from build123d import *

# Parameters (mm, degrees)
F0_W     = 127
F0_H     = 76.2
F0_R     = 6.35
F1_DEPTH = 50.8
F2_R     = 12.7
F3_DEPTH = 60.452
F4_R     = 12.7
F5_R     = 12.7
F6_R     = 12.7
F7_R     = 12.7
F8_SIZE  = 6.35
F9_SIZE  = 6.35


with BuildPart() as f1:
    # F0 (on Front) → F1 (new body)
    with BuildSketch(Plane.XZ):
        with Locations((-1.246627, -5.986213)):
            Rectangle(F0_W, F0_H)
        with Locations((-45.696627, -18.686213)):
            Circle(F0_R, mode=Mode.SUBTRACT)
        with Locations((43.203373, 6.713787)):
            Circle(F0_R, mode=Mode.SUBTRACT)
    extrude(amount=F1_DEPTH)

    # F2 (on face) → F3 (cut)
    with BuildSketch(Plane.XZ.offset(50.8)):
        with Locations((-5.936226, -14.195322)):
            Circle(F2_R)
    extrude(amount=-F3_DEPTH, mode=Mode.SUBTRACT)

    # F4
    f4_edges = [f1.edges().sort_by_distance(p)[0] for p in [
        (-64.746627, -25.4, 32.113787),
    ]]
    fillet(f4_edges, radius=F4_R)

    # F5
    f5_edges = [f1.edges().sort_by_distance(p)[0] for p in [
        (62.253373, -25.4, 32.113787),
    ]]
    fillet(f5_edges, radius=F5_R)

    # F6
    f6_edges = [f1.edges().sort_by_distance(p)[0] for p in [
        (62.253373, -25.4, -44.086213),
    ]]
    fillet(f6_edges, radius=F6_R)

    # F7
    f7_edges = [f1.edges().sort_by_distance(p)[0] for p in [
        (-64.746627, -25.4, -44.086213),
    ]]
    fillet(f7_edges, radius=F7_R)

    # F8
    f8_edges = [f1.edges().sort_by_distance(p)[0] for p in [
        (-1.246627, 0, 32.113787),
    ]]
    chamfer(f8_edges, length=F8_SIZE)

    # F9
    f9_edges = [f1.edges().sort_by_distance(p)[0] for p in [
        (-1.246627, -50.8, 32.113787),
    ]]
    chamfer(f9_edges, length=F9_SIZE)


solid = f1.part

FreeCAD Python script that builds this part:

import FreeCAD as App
import Part
import Sketcher

V = App.Vector
Q = App.Units.Quantity


def edges_at(feature, points):
    """Names of the edges that pass closest to the given points."""
    edges = feature.Shape.Edges
    near = lambda p: min(range(len(edges)), key=lambda i: edges[i].distToShape(Part.Vertex(*p))[0])
    return sorted({f"Edge{near(p) + 1}" for p in points})

doc = App.newDocument("Part")
body = doc.addObject("PartDesign::Body", "Body")

# Sketch on XZ plane
sketch1 = doc.addObject("Sketcher::SketchObject", "Sketch")
body.addObject(sketch1)
sketch1.AttachmentSupport = (doc.XZ_Plane, [""])
sketch1.MapMode = "FlatFace"
sketch1.addGeometry(Part.LineSegment(V(-65, 32, 0), V(-65, -44, 0)), False)
sketch1.addGeometry(Part.LineSegment(V(-65, -44, 0), V(62, -44, 0)), False)
sketch1.addGeometry(Part.LineSegment(V(62, -44, 0), V(62, 32, 0)), False)
sketch1.addGeometry(Part.LineSegment(V(62, 32, 0), V(-65, 32, 0)), False)
sketch1.addGeometry(Part.Circle(V(-46, -19, 0), V(0, 0, 1), 6), False)
sketch1.addGeometry(Part.Circle(V(43, 7, 0), V(0, 0, 1), 6), False)
sketch1.addConstraint(Sketcher.Constraint("Coincident", 0, 2, 1, 1))
sketch1.addConstraint(Sketcher.Constraint("Coincident", 1, 2, 2, 1))
sketch1.addConstraint(Sketcher.Constraint("Coincident", 2, 2, 3, 1))
sketch1.addConstraint(Sketcher.Constraint("Coincident", 3, 2, 0, 1))
sketch1.addConstraint(Sketcher.Constraint("Vertical", 0))
sketch1.addConstraint(Sketcher.Constraint("Horizontal", 1))
sketch1.addConstraint(Sketcher.Constraint("Vertical", 2))
sketch1.addConstraint(Sketcher.Constraint("Horizontal", 3))
sketch1.addConstraint(Sketcher.Constraint("Equal", 4, 5))
sketch1.addConstraint(Sketcher.Constraint("Diameter", 4, Q("0.5 in")))
sketch1.addConstraint(Sketcher.Constraint("DistanceX", 1, 1, 1, 2, Q("5 in")))
sketch1.addConstraint(Sketcher.Constraint("DistanceY", 0, 2, 0, 1, Q("3 in")))
sketch1.addConstraint(Sketcher.Constraint("DistanceY", 4, 3, 5, 3, Q("1 in")))
sketch1.addConstraint(Sketcher.Constraint("DistanceY", 0, 2, 4, 3, Q("1 in")))
sketch1.addConstraint(Sketcher.Constraint("DistanceX", 4, 3, 5, 3, Q("3.5 in")))
sketch1.addConstraint(Sketcher.Constraint("DistanceX", 0, 2, 4, 3, Q("0.75 in")))
sketch1.addConstraint(Sketcher.Constraint("DistanceX", 4, 3, -1, 1, Q("45.696627 mm")))
sketch1.addConstraint(Sketcher.Constraint("DistanceY", 4, 3, -1, 1, Q("18.686213 mm")))
pad1 = doc.addObject("PartDesign::Pad", "Pad")
body.addObject(pad1)
pad1.Profile = sketch1
pad1.Length = Q("2 in")

# Sketch on XZ plane
sketch2 = doc.addObject("Sketcher::SketchObject", "Sketch001")
body.addObject(sketch2)
sketch2.AttachmentSupport = (doc.XZ_Plane, [""])
sketch2.MapMode = "FlatFace"
sketch2.AttachmentOffset = App.Placement(V(0, 0, 2 * 25.4), App.Rotation())
sketch2.addGeometry(Part.Circle(V(-6, -14, 0), V(0, 0, 1), 13), False)
sketch2.addConstraint(Sketcher.Constraint("Diameter", 0, Q("1 in")))
sketch2.addConstraint(Sketcher.Constraint("DistanceX", 0, 3, -1, 1, Q("5.936226 mm")))
sketch2.addConstraint(Sketcher.Constraint("DistanceY", 0, 3, -1, 1, Q("14.195322 mm")))
pocket1 = doc.addObject("PartDesign::Pocket", "Pocket")
body.addObject(pocket1)
pocket1.Profile = sketch2
pocket1.Length = Q("2.38 in")
doc.recompute()

fillet = doc.addObject("PartDesign::Fillet", "Fillet")
body.addObject(fillet)
fillet.Base = (pocket1, edges_at(pocket1, [(-64.747, -25.4, 32.114)]))
fillet.Radius = Q("0.5 in")
doc.recompute()

fillet2 = doc.addObject("PartDesign::Fillet", "Fillet001")
body.addObject(fillet2)
fillet2.Base = (fillet, edges_at(fillet, [(62.253, -25.4, 32.114)]))
fillet2.Radius = Q("0.5 in")
doc.recompute()

fillet3 = doc.addObject("PartDesign::Fillet", "Fillet002")
body.addObject(fillet3)
fillet3.Base = (fillet2, edges_at(fillet2, [(62.253, -25.4, -44.086)]))
fillet3.Radius = Q("0.5 in")
doc.recompute()

fillet4 = doc.addObject("PartDesign::Fillet", "Fillet003")
body.addObject(fillet4)
fillet4.Base = (fillet3, edges_at(fillet3, [(-64.747, -25.4, -44.086)]))
fillet4.Radius = Q("0.5 in")
doc.recompute()

chamfer = doc.addObject("PartDesign::Chamfer", "Chamfer")
body.addObject(chamfer)
chamfer.Base = (fillet4, edges_at(fillet4, [(-1.247, 0, 32.114)]))
chamfer.Size = Q("0.25 in")
doc.recompute()

chamfer2 = doc.addObject("PartDesign::Chamfer", "Chamfer001")
body.addObject(chamfer2)
chamfer2.Base = (chamfer, edges_at(chamfer, [(-1.247, -50.8, 32.114)]))
chamfer2.Size = Q("0.25 in")

doc.recompute()
